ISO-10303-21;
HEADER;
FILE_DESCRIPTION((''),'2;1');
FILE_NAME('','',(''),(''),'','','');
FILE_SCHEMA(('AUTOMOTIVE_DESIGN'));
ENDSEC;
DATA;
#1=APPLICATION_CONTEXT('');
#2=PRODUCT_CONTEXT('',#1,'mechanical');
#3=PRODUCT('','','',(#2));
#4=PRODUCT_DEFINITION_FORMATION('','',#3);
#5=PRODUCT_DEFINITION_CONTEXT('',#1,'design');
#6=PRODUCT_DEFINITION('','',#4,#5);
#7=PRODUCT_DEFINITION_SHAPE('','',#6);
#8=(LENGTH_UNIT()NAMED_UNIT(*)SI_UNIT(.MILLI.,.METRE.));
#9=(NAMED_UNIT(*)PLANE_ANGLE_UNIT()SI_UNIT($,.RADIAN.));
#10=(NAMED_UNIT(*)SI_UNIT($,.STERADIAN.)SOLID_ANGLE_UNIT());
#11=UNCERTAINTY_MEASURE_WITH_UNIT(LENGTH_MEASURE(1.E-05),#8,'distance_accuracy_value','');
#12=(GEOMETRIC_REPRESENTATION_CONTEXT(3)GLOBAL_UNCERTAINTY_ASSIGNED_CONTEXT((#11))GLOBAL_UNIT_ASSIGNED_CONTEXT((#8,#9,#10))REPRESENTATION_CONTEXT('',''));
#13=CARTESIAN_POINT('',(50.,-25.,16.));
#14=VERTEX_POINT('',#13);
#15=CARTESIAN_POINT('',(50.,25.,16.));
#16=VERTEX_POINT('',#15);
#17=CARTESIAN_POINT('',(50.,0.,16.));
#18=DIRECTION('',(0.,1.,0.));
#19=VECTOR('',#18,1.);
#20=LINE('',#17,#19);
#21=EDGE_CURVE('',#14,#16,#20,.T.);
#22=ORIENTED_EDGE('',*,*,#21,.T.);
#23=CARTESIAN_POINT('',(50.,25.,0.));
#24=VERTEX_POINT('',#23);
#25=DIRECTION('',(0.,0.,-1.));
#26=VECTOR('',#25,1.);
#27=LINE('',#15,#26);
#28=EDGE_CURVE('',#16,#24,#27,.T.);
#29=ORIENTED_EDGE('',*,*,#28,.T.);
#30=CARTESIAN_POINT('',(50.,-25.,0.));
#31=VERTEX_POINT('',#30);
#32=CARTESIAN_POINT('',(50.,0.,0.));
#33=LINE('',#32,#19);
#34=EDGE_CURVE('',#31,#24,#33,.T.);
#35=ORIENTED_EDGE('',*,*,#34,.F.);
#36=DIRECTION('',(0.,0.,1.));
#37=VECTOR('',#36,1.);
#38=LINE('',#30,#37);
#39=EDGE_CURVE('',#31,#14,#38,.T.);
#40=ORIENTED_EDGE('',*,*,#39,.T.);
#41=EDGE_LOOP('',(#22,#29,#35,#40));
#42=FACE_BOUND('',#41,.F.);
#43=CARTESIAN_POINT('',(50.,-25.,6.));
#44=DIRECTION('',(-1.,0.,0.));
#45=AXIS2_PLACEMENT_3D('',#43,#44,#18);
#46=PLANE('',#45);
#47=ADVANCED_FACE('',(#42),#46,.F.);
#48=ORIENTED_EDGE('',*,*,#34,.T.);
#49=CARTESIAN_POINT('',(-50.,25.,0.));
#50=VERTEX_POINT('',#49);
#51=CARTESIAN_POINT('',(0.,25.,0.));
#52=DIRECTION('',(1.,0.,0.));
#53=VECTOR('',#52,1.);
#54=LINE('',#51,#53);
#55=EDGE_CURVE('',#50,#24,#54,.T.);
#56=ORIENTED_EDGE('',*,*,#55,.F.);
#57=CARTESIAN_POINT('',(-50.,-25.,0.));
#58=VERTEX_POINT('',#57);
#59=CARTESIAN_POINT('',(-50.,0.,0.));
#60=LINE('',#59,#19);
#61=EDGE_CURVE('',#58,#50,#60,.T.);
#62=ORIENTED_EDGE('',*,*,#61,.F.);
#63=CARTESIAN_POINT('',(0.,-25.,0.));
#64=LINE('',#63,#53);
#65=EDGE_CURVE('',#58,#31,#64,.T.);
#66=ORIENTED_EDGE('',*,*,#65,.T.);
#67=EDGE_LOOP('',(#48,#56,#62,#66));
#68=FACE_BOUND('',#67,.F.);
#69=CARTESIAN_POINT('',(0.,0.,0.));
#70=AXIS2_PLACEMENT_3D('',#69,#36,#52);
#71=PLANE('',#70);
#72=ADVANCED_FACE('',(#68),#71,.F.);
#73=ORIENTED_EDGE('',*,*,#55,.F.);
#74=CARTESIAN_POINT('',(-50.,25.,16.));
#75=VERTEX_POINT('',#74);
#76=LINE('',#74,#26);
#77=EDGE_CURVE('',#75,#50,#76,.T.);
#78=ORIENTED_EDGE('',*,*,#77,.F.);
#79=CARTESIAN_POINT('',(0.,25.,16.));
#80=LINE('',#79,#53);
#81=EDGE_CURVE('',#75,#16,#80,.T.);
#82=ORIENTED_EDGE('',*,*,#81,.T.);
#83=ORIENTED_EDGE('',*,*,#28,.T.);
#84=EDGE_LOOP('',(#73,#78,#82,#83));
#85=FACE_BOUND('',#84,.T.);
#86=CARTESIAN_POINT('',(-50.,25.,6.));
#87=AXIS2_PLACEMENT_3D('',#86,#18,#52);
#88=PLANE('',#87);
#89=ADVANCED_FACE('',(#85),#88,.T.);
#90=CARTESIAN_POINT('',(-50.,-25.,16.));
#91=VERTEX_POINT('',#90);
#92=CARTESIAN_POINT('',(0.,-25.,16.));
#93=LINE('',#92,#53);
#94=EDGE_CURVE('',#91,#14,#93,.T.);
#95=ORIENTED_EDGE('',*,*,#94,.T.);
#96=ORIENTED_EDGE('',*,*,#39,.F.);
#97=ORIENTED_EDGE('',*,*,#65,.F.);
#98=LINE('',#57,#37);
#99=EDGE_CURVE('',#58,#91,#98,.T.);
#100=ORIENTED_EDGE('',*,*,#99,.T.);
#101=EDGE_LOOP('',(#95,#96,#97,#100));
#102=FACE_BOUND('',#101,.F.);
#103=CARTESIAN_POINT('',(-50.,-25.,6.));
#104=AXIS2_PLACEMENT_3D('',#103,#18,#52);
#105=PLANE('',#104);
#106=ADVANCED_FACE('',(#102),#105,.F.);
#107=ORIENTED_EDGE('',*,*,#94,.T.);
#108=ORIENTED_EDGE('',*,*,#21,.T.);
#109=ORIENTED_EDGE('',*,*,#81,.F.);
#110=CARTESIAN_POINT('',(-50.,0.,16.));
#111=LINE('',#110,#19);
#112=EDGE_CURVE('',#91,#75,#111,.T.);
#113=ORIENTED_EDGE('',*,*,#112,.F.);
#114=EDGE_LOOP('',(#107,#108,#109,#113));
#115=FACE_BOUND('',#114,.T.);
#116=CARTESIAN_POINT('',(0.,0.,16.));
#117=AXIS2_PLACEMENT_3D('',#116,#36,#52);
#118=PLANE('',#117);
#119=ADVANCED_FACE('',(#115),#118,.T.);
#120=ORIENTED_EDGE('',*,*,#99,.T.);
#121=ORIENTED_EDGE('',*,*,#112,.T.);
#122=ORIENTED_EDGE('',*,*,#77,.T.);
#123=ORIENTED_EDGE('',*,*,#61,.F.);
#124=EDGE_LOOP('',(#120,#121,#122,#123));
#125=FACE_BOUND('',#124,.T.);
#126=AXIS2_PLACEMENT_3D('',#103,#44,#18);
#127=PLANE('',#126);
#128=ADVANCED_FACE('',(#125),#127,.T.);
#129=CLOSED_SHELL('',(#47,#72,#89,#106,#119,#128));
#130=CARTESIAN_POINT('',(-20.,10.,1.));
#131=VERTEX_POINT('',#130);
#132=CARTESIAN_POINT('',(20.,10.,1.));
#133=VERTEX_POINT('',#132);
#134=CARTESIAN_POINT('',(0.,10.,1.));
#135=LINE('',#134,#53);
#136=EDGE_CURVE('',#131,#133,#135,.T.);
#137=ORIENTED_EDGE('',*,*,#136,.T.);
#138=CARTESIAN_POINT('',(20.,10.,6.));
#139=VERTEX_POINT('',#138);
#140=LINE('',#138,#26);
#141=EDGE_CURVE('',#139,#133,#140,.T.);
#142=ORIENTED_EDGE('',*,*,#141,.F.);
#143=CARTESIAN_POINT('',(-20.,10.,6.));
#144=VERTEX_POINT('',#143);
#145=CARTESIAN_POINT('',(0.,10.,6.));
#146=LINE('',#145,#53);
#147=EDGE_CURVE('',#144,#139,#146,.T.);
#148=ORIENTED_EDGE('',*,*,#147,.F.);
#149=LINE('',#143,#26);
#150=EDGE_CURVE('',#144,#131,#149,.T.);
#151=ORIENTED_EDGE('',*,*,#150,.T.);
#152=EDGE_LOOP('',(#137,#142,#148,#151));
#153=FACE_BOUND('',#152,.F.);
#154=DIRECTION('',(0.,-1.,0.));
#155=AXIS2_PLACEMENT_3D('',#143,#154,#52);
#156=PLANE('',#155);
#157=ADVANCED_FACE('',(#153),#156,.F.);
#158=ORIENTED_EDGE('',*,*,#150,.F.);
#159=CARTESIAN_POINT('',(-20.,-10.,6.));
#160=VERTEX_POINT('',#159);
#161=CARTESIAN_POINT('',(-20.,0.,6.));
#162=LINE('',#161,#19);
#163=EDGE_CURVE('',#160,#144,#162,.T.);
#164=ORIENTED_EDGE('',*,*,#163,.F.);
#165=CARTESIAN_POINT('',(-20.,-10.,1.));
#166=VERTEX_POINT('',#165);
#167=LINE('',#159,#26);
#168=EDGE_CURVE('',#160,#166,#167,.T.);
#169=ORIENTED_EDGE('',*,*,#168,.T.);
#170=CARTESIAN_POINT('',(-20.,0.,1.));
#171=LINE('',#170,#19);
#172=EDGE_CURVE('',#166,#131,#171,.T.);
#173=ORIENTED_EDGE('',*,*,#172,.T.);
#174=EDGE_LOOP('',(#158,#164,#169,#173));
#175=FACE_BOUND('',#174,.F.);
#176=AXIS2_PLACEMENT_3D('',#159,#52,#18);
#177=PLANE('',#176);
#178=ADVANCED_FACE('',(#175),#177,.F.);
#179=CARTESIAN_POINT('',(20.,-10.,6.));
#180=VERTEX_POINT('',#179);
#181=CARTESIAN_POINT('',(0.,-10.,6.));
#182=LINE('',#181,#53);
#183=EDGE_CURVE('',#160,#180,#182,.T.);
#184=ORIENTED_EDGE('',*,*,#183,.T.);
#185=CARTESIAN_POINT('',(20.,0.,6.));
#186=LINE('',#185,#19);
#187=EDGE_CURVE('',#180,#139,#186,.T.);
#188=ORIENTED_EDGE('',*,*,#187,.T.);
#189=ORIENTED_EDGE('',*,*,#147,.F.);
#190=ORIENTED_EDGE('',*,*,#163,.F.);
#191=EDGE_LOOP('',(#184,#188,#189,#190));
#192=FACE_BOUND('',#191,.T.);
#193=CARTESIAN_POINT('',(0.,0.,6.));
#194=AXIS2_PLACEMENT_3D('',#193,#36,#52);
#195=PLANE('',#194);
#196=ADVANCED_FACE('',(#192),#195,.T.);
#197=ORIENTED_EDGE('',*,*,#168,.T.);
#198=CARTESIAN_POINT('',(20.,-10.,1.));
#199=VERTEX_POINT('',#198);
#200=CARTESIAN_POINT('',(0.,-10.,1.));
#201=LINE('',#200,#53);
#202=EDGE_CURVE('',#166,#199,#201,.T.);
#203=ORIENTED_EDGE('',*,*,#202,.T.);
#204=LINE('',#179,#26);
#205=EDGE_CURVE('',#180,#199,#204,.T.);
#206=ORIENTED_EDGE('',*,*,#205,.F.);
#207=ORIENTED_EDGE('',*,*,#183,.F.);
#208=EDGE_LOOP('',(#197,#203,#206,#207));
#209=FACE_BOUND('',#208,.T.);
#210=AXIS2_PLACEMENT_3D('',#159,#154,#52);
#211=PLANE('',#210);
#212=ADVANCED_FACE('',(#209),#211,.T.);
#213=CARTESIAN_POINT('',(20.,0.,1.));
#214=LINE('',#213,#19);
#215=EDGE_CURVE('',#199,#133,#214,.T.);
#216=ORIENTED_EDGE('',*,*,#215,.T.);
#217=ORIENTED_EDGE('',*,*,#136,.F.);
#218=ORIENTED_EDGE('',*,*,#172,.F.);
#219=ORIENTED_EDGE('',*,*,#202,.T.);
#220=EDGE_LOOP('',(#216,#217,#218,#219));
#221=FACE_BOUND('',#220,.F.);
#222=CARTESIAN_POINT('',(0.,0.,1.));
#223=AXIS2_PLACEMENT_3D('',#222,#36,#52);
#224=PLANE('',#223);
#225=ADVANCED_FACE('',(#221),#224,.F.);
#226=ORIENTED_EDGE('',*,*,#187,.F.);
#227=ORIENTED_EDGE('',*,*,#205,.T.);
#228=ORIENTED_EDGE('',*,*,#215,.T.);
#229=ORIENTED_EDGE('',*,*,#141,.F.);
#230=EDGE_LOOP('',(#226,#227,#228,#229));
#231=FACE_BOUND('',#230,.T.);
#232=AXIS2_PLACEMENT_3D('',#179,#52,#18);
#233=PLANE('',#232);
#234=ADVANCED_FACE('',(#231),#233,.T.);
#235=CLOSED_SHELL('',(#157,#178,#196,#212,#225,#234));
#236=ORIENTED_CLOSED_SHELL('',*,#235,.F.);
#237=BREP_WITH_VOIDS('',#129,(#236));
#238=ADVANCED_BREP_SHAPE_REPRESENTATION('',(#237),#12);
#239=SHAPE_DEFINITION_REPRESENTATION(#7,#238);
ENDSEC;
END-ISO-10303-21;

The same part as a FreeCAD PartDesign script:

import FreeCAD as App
import Part
import Sketcher


def add_polygon(sketch, points):
    """Adds a closed chain of lines whose ends are joined by coincident constraints."""
    first, n = sketch.GeometryCount, len(points)
    for a, b in zip(points, points[1:] + points[:1]):
        sketch.addGeometry(Part.LineSegment(App.Vector(*a, 0), App.Vector(*b, 0)), False)
    for i in range(n):
        sketch.addConstraint(Sketcher.Constraint("Coincident", first + i, 2, first + (i + 1) % n, 1))

doc = App.newDocument("Part")
body = doc.addObject("PartDesign::Body", "Body")

# Sketch on XY plane
sketch1 = body.newObject("Sketcher::SketchObject", "Sketch")
sketch1.AttachmentSupport = (doc.getObject("XY_Plane"), [""])
sketch1.MapMode = "FlatFace"
add_polygon(sketch1, [(-50, 25), (-50, -25), (50, -25), (50, 25)])  # lines 0-3
sketch1.addConstraint([
    Sketcher.Constraint("Vertical", 0),
    Sketcher.Constraint("Horizontal", 1),
    Sketcher.Constraint("Vertical", 2),
    Sketcher.Constraint("Horizontal", 3),
    Sketcher.Constraint("Symmetric", 0, 2, 2, 2, -1, 1),
    Sketcher.Constraint("DistanceX", 1, 1, 1, 2, 100.0),
    Sketcher.Constraint("DistanceY", 0, 2, 0, 1, 50.0),
])
pad1 = body.newObject("PartDesign::Pad", "Pad")
pad1.Profile = sketch1
pad1.Length = 6

# Sketch on XY plane
sketch2 = body.newObject("Sketcher::SketchObject", "Sketch001")
sketch2.AttachmentSupport = (doc.getObject("XY_Plane"), [""])
sketch2.MapMode = "FlatFace"
sketch2.AttachmentOffset = App.Placement(App.Vector(0, 0, 6), App.Rotation())
add_polygon(sketch2, [(-20, 10), (-20, -10), (20, -10), (20, 10)])  # lines 0-3
sketch2.addConstraint([
    Sketcher.Constraint("Vertical", 0),
    Sketcher.Constraint("Horizontal", 1),
    Sketcher.Constraint("Vertical", 2),
    Sketcher.Constraint("Horizontal", 3),
    Sketcher.Constraint("Symmetric", 0, 2, 2, 2, -1, 1),
    Sketcher.Constraint("DistanceX", 1, 1, 1, 2, 40.0),
    Sketcher.Constraint("DistanceY", 0, 2, 0, 1, 20.0),
])
pocket1 = body.newObject("PartDesign::Pocket", "Pocket")
pocket1.Profile = sketch2
pocket1.Length = 5

# Sketch on XY plane
sketch3 = body.newObject("Sketcher::SketchObject", "Sketch002")
sketch3.AttachmentSupport = (doc.getObject("XY_Plane"), [""])
sketch3.MapMode = "FlatFace"
sketch3.AttachmentOffset = App.Placement(App.Vector(0, 0, 6), App.Rotation())
add_polygon(sketch3, [(-50, 25), (-50, -25), (50, -25), (50, 25)])  # lines 0-3
sketch3.addConstraint([
    Sketcher.Constraint("Vertical", 0),
    Sketcher.Constraint("Horizontal", 1),
    Sketcher.Constraint("Vertical", 2),
    Sketcher.Constraint("Horizontal", 3),
    Sketcher.Constraint("Symmetric", 0, 2, 2, 2, -1, 1),
    Sketcher.Constraint("DistanceX", 1, 1, 1, 2, 100.0),
    Sketcher.Constraint("DistanceY", 0, 2, 0, 1, 50.0),
])
pad2 = body.newObject("PartDesign::Pad", "Pad001")
pad2.Profile = sketch3
pad2.Length = 10

doc.recompute()
